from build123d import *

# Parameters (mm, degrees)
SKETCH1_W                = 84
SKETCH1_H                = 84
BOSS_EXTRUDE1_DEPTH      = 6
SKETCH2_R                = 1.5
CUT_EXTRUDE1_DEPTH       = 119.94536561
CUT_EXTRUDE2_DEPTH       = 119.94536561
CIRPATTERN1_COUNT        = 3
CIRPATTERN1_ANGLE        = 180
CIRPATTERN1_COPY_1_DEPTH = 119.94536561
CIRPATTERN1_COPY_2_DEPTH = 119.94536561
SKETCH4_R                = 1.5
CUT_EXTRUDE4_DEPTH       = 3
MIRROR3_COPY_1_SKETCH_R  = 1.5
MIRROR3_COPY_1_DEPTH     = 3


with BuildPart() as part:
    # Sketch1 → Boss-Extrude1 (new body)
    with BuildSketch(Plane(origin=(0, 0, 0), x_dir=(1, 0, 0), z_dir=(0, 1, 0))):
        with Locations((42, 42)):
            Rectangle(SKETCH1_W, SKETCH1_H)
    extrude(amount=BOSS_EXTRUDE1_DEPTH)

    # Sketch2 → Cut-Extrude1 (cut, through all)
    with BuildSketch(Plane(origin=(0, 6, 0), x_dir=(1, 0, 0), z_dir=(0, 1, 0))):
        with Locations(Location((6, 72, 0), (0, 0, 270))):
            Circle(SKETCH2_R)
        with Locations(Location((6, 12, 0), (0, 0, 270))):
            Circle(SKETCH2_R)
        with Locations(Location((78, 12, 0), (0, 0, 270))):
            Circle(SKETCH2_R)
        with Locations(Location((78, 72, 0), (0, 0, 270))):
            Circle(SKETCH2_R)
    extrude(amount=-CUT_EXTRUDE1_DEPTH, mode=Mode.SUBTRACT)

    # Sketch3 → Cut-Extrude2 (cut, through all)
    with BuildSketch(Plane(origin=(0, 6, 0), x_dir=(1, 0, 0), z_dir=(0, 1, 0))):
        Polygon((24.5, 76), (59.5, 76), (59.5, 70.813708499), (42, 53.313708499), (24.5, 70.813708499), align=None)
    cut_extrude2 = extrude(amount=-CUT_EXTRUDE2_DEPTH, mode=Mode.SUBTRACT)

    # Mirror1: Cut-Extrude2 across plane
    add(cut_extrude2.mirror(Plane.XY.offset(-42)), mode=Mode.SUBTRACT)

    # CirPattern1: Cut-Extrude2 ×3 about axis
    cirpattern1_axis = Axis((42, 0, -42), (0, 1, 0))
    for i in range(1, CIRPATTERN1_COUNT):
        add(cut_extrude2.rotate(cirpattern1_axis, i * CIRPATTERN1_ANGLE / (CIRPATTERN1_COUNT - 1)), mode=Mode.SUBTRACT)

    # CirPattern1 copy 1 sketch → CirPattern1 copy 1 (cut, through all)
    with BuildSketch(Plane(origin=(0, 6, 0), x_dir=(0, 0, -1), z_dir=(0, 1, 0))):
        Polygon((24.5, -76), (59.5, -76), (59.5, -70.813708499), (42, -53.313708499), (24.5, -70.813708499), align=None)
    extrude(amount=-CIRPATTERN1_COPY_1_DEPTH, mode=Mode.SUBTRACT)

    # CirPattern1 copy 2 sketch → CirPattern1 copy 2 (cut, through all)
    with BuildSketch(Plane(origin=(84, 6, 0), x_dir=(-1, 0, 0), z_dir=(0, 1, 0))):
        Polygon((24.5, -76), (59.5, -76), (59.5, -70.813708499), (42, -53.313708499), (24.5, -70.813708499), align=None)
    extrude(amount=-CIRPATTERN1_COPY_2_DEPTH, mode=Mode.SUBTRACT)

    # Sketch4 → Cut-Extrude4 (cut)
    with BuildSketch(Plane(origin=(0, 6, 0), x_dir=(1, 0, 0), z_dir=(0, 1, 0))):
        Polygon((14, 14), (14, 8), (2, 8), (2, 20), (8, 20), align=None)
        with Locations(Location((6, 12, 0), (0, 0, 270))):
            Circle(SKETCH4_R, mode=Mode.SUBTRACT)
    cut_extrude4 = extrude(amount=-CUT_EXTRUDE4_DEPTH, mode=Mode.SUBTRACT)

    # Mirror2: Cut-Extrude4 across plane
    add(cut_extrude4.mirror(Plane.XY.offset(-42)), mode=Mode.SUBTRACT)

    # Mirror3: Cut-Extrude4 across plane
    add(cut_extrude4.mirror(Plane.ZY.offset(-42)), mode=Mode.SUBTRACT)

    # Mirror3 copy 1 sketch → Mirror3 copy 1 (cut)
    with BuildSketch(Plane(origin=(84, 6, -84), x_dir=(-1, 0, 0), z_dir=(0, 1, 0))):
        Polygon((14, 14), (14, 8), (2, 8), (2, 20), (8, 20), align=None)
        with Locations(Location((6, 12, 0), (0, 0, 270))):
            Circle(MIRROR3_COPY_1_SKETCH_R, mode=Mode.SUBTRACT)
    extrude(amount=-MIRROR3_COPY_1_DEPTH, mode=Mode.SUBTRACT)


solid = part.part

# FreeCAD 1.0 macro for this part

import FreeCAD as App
import Part
import Sketcher

V = App.Vector
Q = App.Units.Quantity


def add_polygon(sketch, points):
    """Adds a closed chain of lines whose ends are joined by coincident constraints."""
    first, n = sketch.GeometryCount, len(points)
    for a, b in zip(points, points[1:] + points[:1]):
        sketch.addGeometry(Part.LineSegment(App.Vector(*a, 0), App.Vector(*b, 0)), False)
    for i in range(n):
        sketch.addConstraint(Sketcher.Constraint("Coincident", first + i, 2, first + (i + 1) % n, 1))

doc = App.newDocument("Part")
body = doc.addObject("PartDesign::Body", "Body")

# Sketch on XZ plane
sketch1 = doc.addObject("Sketcher::SketchObject", "Sketch")
body.addObject(sketch1)
sketch1.AttachmentSupport = (doc.XZ_Plane, [""])
sketch1.MapMode = "FlatFace"
add_polygon(sketch1, [(0, -84), (0, 0), (84, 0), (84, -84)])  # lines 0-3
sketch1.addConstraint(Sketcher.Constraint("Vertical", 0))
sketch1.addConstraint(Sketcher.Constraint("Horizontal", 1))
sketch1.addConstraint(Sketcher.Constraint("Vertical", 2))
sketch1.addConstraint(Sketcher.Constraint("Horizontal", 3))
sketch1.addConstraint(Sketcher.Constraint("Coincident", 0, 2, -1, 1))
sketch1.addConstraint(Sketcher.Constraint("Equal", 3, 0))
sketch1.addConstraint(Sketcher.Constraint("DistanceX", 1, 1, 1, 2, Q("84 mm")))
pad1 = doc.addObject("PartDesign::Pad", "Pad")
body.addObject(pad1)
pad1.Profile = sketch1
pad1.Length = 6
pad1.Reversed = True

# Sketch on XZ plane
sketch2 = doc.addObject("Sketcher::SketchObject", "Sketch001")
body.addObject(sketch2)
sketch2.AttachmentSupport = (doc.XZ_Plane, [""])
sketch2.MapMode = "FlatFace"
sketch2.AttachmentOffset = App.Placement(V(0, 0, -6), App.Rotation())
sketch2.addGeometry(Part.Circle(V(6, -72, 0), V(0, 0, 1), 1.5), False)
sketch2.addGeometry(Part.Circle(V(6, -12, 0), V(0, 0, 1), 1.5), False)
sketch2.addGeometry(Part.Circle(V(78, -12, 0), V(0, 0, 1), 1.5), False)
sketch2.addGeometry(Part.Circle(V(78, -72, 0), V(0, 0, 1), 1.5), False)
sketch2.addConstraint(Sketcher.Constraint("Equal", 0, 1))
sketch2.addConstraint(Sketcher.Constraint("Equal", 1, 2))
sketch2.addConstraint(Sketcher.Constraint("Equal", 2, 3))
sketch2.addConstraint(Sketcher.Constraint("Horizontal", 1, 3, 2, 3))
sketch2.addConstraint(Sketcher.Constraint("Horizontal", 0, 3, 3, 3))
sketch2.addConstraint(Sketcher.Constraint("Vertical", 0, 3, 1, 3))
sketch2.addConstraint(Sketcher.Constraint("Vertical", 2, 3, 3, 3))
sketch2.addConstraint(Sketcher.Constraint("Diameter", 0, Q("3 mm")))
sketch2.addConstraint(Sketcher.Constraint("DistanceX", -1, 1, 0, 3, Q("6 mm")))
sketch2.addConstraint(Sketcher.Constraint("DistanceY", 0, 3, -1, 1, Q("72 mm")))
sketch2.addConstraint(Sketcher.Constraint("DistanceY", 1, 3, -1, 1, Q("12 mm")))
sketch2.addConstraint(Sketcher.Constraint("DistanceX", -1, 1, 2, 3, Q("78 mm")))
pocket1 = doc.addObject("PartDesign::Pocket", "Pocket")
body.addObject(pocket1)
pocket1.Profile = sketch2
pocket1.Type = "ThroughAll"
pocket1.Reversed = True

# Sketch on XZ plane
sketch3 = doc.addObject("Sketcher::SketchObject", "Sketch002")
body.addObject(sketch3)
sketch3.AttachmentSupport = (doc.XZ_Plane, [""])
sketch3.MapMode = "FlatFace"
sketch3.AttachmentOffset = App.Placement(V(0, 0, -6), App.Rotation())
add_polygon(sketch3, [(60, -76), (24, -76), (24, -71), (42, -53), (60, -71)])  # lines 0-4
sketch3.addConstraint(Sketcher.Constraint("Horizontal", 0))
sketch3.addConstraint(Sketcher.Constraint("Vertical", 1))
sketch3.addConstraint(Sketcher.Constraint("Vertical", 4))
sketch3.addConstraint(Sketcher.Constraint("Perpendicular", 2, 3))
sketch3.addConstraint(Sketcher.Constraint("Horizontal", 1, 2, 3, 2))
sketch3.addConstraint(Sketcher.Constraint("Equal", 2, 3))
sketch3.addConstraint(Sketcher.Constraint("DistanceX", 0, 2, 0, 1, Q("35 mm")))
sketch3.addConstraint(Sketcher.Constraint("DistanceY", 0, 2, -1, 1, Q("76 mm")))
sketch3.addConstraint(Sketcher.Constraint("DistanceX", -1, 1, 2, 2, Q("42 mm")))
sketch3.addConstraint(Sketcher.Constraint("DistanceY", 1, 1, 1, 2, Q("5.186292 mm")))
pocket2 = doc.addObject("PartDesign::Pocket", "Pocket001")
body.addObject(pocket2)
pocket2.Profile = sketch3
pocket2.Type = "ThroughAll"
pocket2.Reversed = True
doc.recompute()

datumplane = doc.addObject("PartDesign::Plane", "DatumPlane")
body.addObject(datumplane)
datumplane.AttachmentSupport = (doc.XY_Plane, [""])
datumplane.MapMode = "FlatFace"
datumplane.AttachmentOffset = App.Placement(V(0, 0, -42), App.Rotation())
mirrored = doc.addObject("PartDesign::Mirrored", "Mirrored")
body.addObject(mirrored)
mirrored.Originals = [pocket2]
mirrored.MirrorPlane = (datumplane, [""])
body.Tip = mirrored
doc.recompute()

datumline = doc.addObject("PartDesign::Line", "DatumLine")
body.addObject(datumline)
datumline.Placement = App.Placement(V(42, 0, -42), App.Rotation(V(0, 0, 1), V(0, 1, 0)))
polarpattern = doc.addObject("PartDesign::PolarPattern", "PolarPattern")
body.addObject(polarpattern)
polarpattern.Originals = [pocket2]
polarpattern.Axis = (datumline, [""])
polarpattern.Angle = 180
polarpattern.Occurrences = 3
body.Tip = polarpattern

# Sketch on XZ plane
sketch4 = doc.addObject("Sketcher::SketchObject", "Sketch003")
body.addObject(sketch4)
sketch4.AttachmentSupport = (doc.XZ_Plane, [""])
sketch4.MapMode = "FlatFace"
sketch4.AttachmentOffset = App.Placement(V(0, 0, -6), App.Rotation())
add_polygon(sketch4, [(76, -24), (76, -60), (71, -60), (53, -42), (71, -24)])  # lines 0-4
sketch4.addConstraint(Sketcher.Constraint("Vertical", 0))
sketch4.addConstraint(Sketcher.Constraint("Horizontal", 1))
sketch4.addConstraint(Sketcher.Constraint("Horizontal", 4))
sketch4.addConstraint(Sketcher.Constraint("Perpendicular", 2, 3))
sketch4.addConstraint(Sketcher.Constraint("Vertical", 1, 2, 3, 2))
sketch4.addConstraint(Sketcher.Constraint("Equal", 2, 3))
sketch4.addConstraint(Sketcher.Constraint("DistanceY", 0, 2, 0, 1, Q("35 mm")))
sketch4.addConstraint(Sketcher.Constraint("DistanceX", -1, 1, 0, 2, Q("76 mm")))
sketch4.addConstraint(Sketcher.Constraint("DistanceY", 2, 2, -1, 1, Q("42 mm")))
sketch4.addConstraint(Sketcher.Constraint("DistanceX", 1, 2, 1, 1, Q("5.186292 mm")))
pocket3 = doc.addObject("PartDesign::Pocket", "Pocket002")
body.addObject(pocket3)
pocket3.Profile = sketch4
pocket3.Type = "ThroughAll"
pocket3.Reversed = True

# Sketch on XZ plane
sketch5 = doc.addObject("Sketcher::SketchObject", "Sketch004")
body.addObject(sketch5)
sketch5.AttachmentSupport = (doc.XZ_Plane, [""])
sketch5.MapMode = "FlatFace"
sketch5.AttachmentOffset = App.Placement(V(0, 0, -6), App.Rotation())
add_polygon(sketch5, [(60, -76), (24, -76), (24, -71), (42, -53), (60, -71)])  # lines 0-4
sketch5.addConstraint(Sketcher.Constraint("Horizontal", 0))
sketch5.addConstraint(Sketcher.Constraint("Vertical", 1))
sketch5.addConstraint(Sketcher.Constraint("Vertical", 4))
sketch5.addConstraint(Sketcher.Constraint("Perpendicular", 2, 3))
sketch5.addConstraint(Sketcher.Constraint("Horizontal", 1, 2, 3, 2))
sketch5.addConstraint(Sketcher.Constraint("Equal", 2, 3))
sketch5.addConstraint(Sketcher.Constraint("DistanceX", 0, 2, 0, 1, Q("35 mm")))
sketch5.addConstraint(Sketcher.Constraint("DistanceY", 0, 2, -1, 1, Q("76 mm")))
sketch5.addConstraint(Sketcher.Constraint("DistanceX", -1, 1, 2, 2, Q("42 mm")))
sketch5.addConstraint(Sketcher.Constraint("DistanceY", 1, 1, 1, 2, Q("5.186292 mm")))
pocket4 = doc.addObject("PartDesign::Pocket", "Pocket003")
body.addObject(pocket4)
pocket4.Profile = sketch5
pocket4.Type = "ThroughAll"
pocket4.Reversed = True

# Sketch on XZ plane
sketch6 = doc.addObject("Sketcher::SketchObject", "Sketch005")
body.addObject(sketch6)
sketch6.AttachmentSupport = (doc.XZ_Plane, [""])
sketch6.MapMode = "FlatFace"
sketch6.AttachmentOffset = App.Placement(V(0, 0, -6), App.Rotation())
add_polygon(sketch6, [(14, -8), (14, -14), (8, -20), (2, -20), (2, -8)])  # lines 0-4
sketch6.addGeometry(Part.Circle(V(6, -12, 0), V(0, 0, 1), 1.5), False)  # 5
sketch6.addConstraint(Sketcher.Constraint("Vertical", 0))
sketch6.addConstraint(Sketcher.Constraint("Horizontal", 2))
sketch6.addConstraint(Sketcher.Constraint("Vertical", 3))
sketch6.addConstraint(Sketcher.Constraint("Horizontal", 4))
sketch6.addConstraint(Sketcher.Constraint("Equal", 2, 0))
sketch6.addConstraint(Sketcher.Constraint("Equal", 4, 3))
sketch6.addConstraint(Sketcher.Constraint("Diameter", 5, Q("3 mm")))
sketch6.addConstraint(Sketcher.Constraint("DistanceX", 2, 2, 2, 1, Q("6 mm")))
sketch6.addConstraint(Sketcher.Constraint("DistanceX", 4, 1, 4, 2, Q("12 mm")))
sketch6.addConstraint(Sketcher.Constraint("DistanceX", -1, 1, 5, 3, Q("6 mm")))
sketch6.addConstraint(Sketcher.Constraint("DistanceY", 5, 3, -1, 1, Q("12 mm")))
sketch6.addConstraint(Sketcher.Constraint("DistanceX", -1, 1, 0, 2, Q("14 mm")))
sketch6.addConstraint(Sketcher.Constraint("DistanceY", 0, 2, -1, 1, Q("14 mm")))
pocket5 = doc.addObject("PartDesign::Pocket", "Pocket004")
body.addObject(pocket5)
pocket5.Profile = sketch6
pocket5.Length = 3
pocket5.Reversed = True
doc.recompute()

datumplane2 = doc.addObject("PartDesign::Plane", "DatumPlane001")
body.addObject(datumplane2)
datumplane2.AttachmentSupport = (doc.XY_Plane, [""])
datumplane2.MapMode = "FlatFace"
datumplane2.AttachmentOffset = App.Placement(V(0, 0, -42), App.Rotation())
mirrored2 = doc.addObject("PartDesign::Mirrored", "Mirrored001")
body.addObject(mirrored2)
mirrored2.Originals = [pocket5]
mirrored2.MirrorPlane = (datumplane2, [""])
body.Tip = mirrored2
doc.recompute()

datumplane3 = doc.addObject("PartDesign::Plane", "DatumPlane002")
body.addObject(datumplane3)
datumplane3.AttachmentSupport = (doc.YZ_Plane, [""])
datumplane3.MapMode = "FlatFace"
datumplane3.AttachmentOffset = App.Placement(V(0, 0, 42), App.Rotation())
mirrored3 = doc.addObject("PartDesign::Mirrored", "Mirrored002")
body.addObject(mirrored3)
mirrored3.Originals = [pocket5]
mirrored3.MirrorPlane = (datumplane3, [""])
body.Tip = mirrored3

# Sketch on XZ plane
sketch7 = doc.addObject("Sketcher::SketchObject", "Sketch006")
body.addObject(sketch7)
sketch7.AttachmentSupport = (doc.XZ_Plane, [""])
sketch7.MapMode = "FlatFace"
sketch7.AttachmentOffset = App.Placement(V(0, 0, -6), App.Rotation())
add_polygon(sketch7, [(70, -76), (70, -70), (76, -64), (82, -64), (82, -76)])  # lines 0-4
sketch7.addGeometry(Part.Circle(V(78, -72, 0), V(0, 0, 1), 1.5), False)  # 5
sketch7.addConstraint(Sketcher.Constraint("Vertical", 0))
sketch7.addConstraint(Sketcher.Constraint("Horizontal", 2))
sketch7.addConstraint(Sketcher.Constraint("Vertical", 3))
sketch7.addConstraint(Sketcher.Constraint("Horizontal", 4))
sketch7.addConstraint(Sketcher.Constraint("Equal", 2, 0))
sketch7.addConstraint(Sketcher.Constraint("Equal", 4, 3))
sketch7.addConstraint(Sketcher.Constraint("Diameter", 5, Q("3 mm")))
sketch7.addConstraint(Sketcher.Constraint("DistanceX", 2, 1, 2, 2, Q("6 mm")))
sketch7.addConstraint(Sketcher.Constraint("DistanceX", 4, 2, 4, 1, Q("12 mm")))
sketch7.addConstraint(Sketcher.Constraint("DistanceX", -1, 1, 5, 3, Q("78 mm")))
sketch7.addConstraint(Sketcher.Constraint("DistanceY", 5, 3, -1, 1, Q("72 mm")))
sketch7.addConstraint(Sketcher.Constraint("DistanceX", -1, 1, 0, 2, Q("70 mm")))
sketch7.addConstraint(Sketcher.Constraint("DistanceY", 0, 2, -1, 1, Q("70 mm")))
pocket6 = doc.addObject("PartDesign::Pocket", "Pocket005")
body.addObject(pocket6)
pocket6.Profile = sketch7
pocket6.Length = 3
pocket6.Reversed = True

doc.recompute()
